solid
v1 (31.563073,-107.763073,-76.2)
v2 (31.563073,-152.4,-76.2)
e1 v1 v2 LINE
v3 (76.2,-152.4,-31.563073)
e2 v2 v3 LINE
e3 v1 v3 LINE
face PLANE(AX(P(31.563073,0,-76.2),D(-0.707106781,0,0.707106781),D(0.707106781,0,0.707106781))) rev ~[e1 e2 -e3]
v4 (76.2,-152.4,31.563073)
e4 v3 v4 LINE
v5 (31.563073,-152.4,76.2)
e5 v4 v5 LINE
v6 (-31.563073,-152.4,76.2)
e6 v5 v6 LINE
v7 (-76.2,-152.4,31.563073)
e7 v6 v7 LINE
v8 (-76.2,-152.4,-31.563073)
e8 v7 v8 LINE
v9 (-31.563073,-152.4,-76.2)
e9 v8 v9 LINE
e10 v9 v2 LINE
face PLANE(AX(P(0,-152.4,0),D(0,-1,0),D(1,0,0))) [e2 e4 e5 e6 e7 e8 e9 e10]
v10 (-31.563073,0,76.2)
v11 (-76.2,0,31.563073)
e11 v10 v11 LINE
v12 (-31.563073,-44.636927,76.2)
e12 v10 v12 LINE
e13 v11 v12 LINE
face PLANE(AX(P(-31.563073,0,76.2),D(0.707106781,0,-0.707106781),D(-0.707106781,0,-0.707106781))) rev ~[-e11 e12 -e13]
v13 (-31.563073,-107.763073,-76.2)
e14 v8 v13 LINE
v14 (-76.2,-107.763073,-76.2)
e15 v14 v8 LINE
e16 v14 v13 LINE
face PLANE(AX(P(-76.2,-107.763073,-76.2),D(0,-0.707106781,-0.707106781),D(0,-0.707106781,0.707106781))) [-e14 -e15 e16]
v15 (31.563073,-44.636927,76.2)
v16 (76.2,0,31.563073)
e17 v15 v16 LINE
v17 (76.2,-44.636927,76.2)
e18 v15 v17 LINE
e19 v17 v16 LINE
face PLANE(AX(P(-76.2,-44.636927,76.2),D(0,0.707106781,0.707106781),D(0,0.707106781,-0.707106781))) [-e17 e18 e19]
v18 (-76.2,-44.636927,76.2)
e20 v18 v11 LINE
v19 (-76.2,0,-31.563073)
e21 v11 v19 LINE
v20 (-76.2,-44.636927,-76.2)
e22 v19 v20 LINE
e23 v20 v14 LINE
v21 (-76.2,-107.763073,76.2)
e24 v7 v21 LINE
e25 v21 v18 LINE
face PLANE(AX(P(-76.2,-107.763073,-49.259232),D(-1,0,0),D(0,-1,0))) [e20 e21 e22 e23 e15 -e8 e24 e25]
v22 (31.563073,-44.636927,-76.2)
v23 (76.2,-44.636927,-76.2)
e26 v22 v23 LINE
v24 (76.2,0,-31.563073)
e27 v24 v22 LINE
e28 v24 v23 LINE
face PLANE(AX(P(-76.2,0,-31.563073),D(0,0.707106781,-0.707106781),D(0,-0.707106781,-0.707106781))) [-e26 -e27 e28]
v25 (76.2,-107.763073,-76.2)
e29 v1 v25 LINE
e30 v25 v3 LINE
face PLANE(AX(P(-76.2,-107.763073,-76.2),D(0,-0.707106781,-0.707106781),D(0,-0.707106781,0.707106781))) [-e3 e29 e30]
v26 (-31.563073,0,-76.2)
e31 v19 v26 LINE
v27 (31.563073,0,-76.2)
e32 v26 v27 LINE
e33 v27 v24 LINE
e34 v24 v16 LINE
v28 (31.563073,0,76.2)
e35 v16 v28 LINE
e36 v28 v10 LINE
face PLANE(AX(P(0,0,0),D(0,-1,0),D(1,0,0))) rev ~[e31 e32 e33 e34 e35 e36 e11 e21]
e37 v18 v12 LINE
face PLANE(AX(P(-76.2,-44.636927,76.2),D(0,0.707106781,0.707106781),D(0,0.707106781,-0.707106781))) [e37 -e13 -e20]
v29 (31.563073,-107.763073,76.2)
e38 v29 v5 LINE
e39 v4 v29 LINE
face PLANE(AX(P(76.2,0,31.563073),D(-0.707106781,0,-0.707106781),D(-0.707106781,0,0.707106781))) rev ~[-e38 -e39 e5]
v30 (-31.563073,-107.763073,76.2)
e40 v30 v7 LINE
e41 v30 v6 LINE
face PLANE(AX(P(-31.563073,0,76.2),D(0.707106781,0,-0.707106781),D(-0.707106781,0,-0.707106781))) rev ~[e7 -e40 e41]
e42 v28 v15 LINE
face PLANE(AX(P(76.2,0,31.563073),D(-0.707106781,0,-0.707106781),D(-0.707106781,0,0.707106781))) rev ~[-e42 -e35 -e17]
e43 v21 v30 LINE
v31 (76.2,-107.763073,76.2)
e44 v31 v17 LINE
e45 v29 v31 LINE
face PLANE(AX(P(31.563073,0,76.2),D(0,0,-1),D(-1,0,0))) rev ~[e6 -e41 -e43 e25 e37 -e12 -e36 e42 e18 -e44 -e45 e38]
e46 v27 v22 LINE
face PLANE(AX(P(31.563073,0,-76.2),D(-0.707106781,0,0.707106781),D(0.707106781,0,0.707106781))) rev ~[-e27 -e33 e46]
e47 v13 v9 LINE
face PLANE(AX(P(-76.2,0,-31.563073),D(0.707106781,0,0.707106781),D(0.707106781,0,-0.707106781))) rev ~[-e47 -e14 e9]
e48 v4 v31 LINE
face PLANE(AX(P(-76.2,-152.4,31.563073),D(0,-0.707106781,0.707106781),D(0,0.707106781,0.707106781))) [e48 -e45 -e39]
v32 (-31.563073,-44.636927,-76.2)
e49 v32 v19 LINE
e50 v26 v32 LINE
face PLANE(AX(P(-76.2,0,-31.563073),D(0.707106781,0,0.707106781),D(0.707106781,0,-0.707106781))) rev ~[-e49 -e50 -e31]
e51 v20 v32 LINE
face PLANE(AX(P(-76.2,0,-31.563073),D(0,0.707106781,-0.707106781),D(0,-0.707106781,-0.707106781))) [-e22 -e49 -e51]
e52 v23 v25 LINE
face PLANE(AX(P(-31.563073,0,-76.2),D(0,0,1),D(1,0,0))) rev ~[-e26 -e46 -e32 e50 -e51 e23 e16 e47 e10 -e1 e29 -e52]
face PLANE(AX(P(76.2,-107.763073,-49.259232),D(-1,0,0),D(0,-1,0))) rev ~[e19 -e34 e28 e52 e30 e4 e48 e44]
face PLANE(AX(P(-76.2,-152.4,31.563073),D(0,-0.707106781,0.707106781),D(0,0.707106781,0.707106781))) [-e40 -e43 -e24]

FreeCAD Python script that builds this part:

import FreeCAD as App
import Part
import Sketcher

V = App.Vector
Q = App.Units.Quantity


def add_polygon(sketch, points):
    """Adds a closed chain of lines whose ends are joined by coincident constraints."""
    first, n = sketch.GeometryCount, len(points)
    for a, b in zip(points, points[1:] + points[:1]):
        sketch.addGeometry(Part.LineSegment(App.Vector(*a, 0), App.Vector(*b, 0)), False)
    for i in range(n):
        sketch.addConstraint(Sketcher.Constraint("Coincident", first + i, 2, first + (i + 1) % n, 1))

doc = App.newDocument("Part")
body = doc.addObject("PartDesign::Body", "Body")

# Sketch on XZ plane
sketch1 = doc.addObject("Sketcher::SketchObject", "Sketch")
body.addObject(sketch1)
sketch1.AttachmentSupport = (doc.XZ_Plane, [""])
sketch1.MapMode = "FlatFace"
add_polygon(sketch1, [(-32, -76), (32, -76), (76, -32), (76, 32), (32, 76), (-32, 76), (-76, 32), (-76, -32)])  # lines 0-7
sketch1.addConstraint([
    Sketcher.Constraint("Horizontal", 0),
    Sketcher.Constraint("Vertical", 2),
    Sketcher.Constraint("Horizontal", 4),
    Sketcher.Constraint("Vertical", 6),
    Sketcher.Constraint("Symmetric", 0, 2, 4, 2, -1, 1),
    Sketcher.Constraint("Symmetric", 1, 2, 5, 2, -1, 1),
    Sketcher.Constraint("Perpendicular", 1, 3),
    Sketcher.Constraint("Perpendicular", 5, 7),
    Sketcher.Constraint("Horizontal", 2, 2, 5, 2),
    Sketcher.Constraint("Horizontal", 1, 2, 6, 2),
    Sketcher.Constraint("Vertical", 0, 2, 3, 2),
    Sketcher.Constraint("Equal", 4, 2),
    Sketcher.Constraint("DistanceY", 0, 2, -1, 1, Q("3 in")),
    Sketcher.Constraint("DistanceX", 0, 1, 0, 2, 63.126147),
])
pad1 = doc.addObject("PartDesign::Pad", "Pad")
body.addObject(pad1)
pad1.Profile = sketch1
pad1.Length = Q("6 in")

# Sketch on YZ plane
sketch2 = doc.addObject("Sketcher::SketchObject", "Sketch001")
body.addObject(sketch2)
sketch2.AttachmentSupport = (doc.YZ_Plane, [""])
sketch2.MapMode = "FlatFace"
sketch2.AttachmentOffset = App.Placement(V(0, 0, -3 * 25.4), App.Rotation())
add_polygon(sketch2, [(0, -32), (-45, -76), (-108, -76), (-152, -32), (-152, 32), (-108, 76), (-45, 76), (0, 32)])  # lines 0-7
sketch2.addConstraint([
    Sketcher.Constraint("Horizontal", 1),
    Sketcher.Constraint("Vertical", 3),
    Sketcher.Constraint("Horizontal", 5),
    Sketcher.Constraint("Vertical", 7),
    Sketcher.Constraint("Symmetric", 6, 2, 7, 2, -1, 1),
    Sketcher.Constraint("Symmetric", 1, 2, 4, 2, -1),
    Sketcher.Constraint("Perpendicular", 0, 2),
    Sketcher.Constraint("Perpendicular", 2, 4),
    Sketcher.Constraint("Perpendicular", 4, 6),
    Sketcher.Constraint("Horizontal", 3, 2, 6, 2),
    Sketcher.Constraint("Horizontal", 2, 2, 7, 2),
    Sketcher.Constraint("Equal", 5, 3),
    Sketcher.Constraint("DistanceY", 0, 2, -1, 1, Q("3 in")),
    Sketcher.Constraint("DistanceX", 1, 2, 1, 1, 63.126147),
])
pad2 = doc.addObject("PartDesign::Pad", "Pad001")
body.addObject(pad2)
pad2.Profile = sketch2
pad2.Length = Q("6 in")

doc.recompute()
